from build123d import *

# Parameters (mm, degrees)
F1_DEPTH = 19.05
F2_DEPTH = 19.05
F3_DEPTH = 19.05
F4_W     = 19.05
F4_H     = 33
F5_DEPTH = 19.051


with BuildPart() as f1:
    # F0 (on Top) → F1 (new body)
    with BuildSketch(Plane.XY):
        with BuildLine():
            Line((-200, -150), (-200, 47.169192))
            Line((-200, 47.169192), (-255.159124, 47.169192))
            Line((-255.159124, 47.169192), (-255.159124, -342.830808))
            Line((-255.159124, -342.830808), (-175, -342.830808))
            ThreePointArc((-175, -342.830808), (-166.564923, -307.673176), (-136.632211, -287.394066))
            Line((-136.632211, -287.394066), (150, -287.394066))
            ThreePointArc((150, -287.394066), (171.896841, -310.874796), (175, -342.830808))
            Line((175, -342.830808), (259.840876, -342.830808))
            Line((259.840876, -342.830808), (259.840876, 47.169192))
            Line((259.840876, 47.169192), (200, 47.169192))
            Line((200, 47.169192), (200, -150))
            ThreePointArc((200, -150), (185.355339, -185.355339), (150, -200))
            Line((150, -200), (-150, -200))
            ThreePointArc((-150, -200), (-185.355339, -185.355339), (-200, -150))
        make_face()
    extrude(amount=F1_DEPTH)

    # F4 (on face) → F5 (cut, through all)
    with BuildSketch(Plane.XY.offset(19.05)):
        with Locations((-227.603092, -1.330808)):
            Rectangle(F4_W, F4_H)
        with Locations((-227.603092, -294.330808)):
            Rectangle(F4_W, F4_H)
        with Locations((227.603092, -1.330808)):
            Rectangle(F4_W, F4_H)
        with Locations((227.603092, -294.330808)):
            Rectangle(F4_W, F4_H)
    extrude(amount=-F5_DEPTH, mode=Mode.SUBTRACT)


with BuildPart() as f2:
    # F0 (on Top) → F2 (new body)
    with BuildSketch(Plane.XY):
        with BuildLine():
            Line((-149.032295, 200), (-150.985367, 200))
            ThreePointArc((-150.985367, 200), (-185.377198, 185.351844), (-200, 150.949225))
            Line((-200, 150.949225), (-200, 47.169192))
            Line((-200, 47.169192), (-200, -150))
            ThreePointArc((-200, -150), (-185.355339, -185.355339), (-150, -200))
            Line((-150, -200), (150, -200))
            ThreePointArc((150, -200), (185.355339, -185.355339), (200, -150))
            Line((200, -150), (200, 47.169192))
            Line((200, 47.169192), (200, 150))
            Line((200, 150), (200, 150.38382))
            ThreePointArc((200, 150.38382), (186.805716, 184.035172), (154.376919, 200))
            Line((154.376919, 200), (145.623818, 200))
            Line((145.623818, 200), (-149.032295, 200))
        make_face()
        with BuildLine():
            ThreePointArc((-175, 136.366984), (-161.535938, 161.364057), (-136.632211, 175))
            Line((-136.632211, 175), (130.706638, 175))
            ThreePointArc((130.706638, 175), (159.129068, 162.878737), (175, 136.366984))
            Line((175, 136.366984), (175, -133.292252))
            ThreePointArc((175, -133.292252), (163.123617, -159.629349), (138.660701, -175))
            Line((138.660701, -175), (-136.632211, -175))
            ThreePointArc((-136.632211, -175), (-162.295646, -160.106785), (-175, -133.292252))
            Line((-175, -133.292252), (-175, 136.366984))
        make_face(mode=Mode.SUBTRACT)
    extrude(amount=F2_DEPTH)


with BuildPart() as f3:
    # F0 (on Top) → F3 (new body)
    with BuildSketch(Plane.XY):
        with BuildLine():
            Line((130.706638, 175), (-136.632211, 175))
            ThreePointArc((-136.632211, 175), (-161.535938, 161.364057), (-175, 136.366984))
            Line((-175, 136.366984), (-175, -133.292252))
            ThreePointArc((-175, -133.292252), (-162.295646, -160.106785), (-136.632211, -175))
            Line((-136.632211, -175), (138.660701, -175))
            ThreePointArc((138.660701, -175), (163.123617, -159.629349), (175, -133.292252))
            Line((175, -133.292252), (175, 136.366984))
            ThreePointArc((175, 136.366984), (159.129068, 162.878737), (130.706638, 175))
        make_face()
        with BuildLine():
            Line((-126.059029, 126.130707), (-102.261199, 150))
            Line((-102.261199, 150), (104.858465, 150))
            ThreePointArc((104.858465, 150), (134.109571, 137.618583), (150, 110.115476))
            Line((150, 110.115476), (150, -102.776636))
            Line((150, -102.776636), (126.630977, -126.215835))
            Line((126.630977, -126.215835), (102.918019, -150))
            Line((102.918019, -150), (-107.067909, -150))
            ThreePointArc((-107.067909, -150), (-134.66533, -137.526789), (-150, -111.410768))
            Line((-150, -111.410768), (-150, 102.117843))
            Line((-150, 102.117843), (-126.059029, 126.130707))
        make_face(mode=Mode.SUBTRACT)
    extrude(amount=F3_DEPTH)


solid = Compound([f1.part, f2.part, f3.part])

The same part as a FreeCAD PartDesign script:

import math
import FreeCAD as App
import Part
import Sketcher
Q = App.Units.Quantity


def add_polygon(sketch, points):
    """Adds a closed chain of lines whose ends are joined by coincident constraints."""
    first, n = sketch.GeometryCount, len(points)
    for a, b in zip(points, points[1:] + points[:1]):
        sketch.addGeometry(Part.LineSegment(App.Vector(*a, 0), App.Vector(*b, 0)), False)
    for i in range(n):
        sketch.addConstraint(Sketcher.Constraint("Coincident", first + i, 2, first + (i + 1) % n, 1))

doc = App.newDocument("Part")
params = doc.addObject("Spreadsheet::Sheet", "Params")
for row, (alias, value) in enumerate([
    ("sketch1_radius", "50.000001 mm"),
    ("sketch1_width", "300 mm"),
    ("sketch1_height", "390 mm"),
    ("pad1_length", "19.05 mm"),
    ("sketch2_height", "33 mm"),
    ("sketch2_width", "19.05 mm"),
    ("sketch3_radius", "49.999999 mm"),
    ("sketch3_radius2", "50 mm"),
    ("sketch3_radius3", "50 mm"),
    ("sketch3_radius4", "50 mm"),
    ("sketch3_radius5", "49.999998 mm"),
    ("pad2_length", "19.05 mm"),
    ("sketch4_radius", "49.999998 mm"),
    ("sketch4_radius2", "49.999999 mm"),
    ("sketch4_radius3", "49.999998 mm"),
    ("sketch4_radius4", "50 mm"),
    ("sketch4_radius5", "50 mm"),
    ("pad3_length", "19.05 mm"),
], start=1):
    params.set(f"A{row}", alias)
    params.set(f"B{row}", "=" + value)
    params.setAlias(f"B{row}", alias)

body = doc.addObject("PartDesign::Body", "Body")

# Sketch on XY plane
sketch1 = doc.addObject("Sketcher::SketchObject", "Sketch")
body.addObject(sketch1)
sketch1.AttachmentSupport = (doc.XY_Plane, [""])
sketch1.MapMode = "FlatFace"
sketch1.addGeometry([
    Part.LineSegment(App.Vector(-200, -150, 0), App.Vector(-200, 47, 0)),  # 0
    Part.LineSegment(App.Vector(-200, 47, 0), App.Vector(-255, 47, 0)),  # 1
    Part.LineSegment(App.Vector(-255, 47, 0), App.Vector(-255, -343, 0)),  # 2
    Part.LineSegment(App.Vector(-255, -343, 0), App.Vector(-175, -343, 0)),  # 3
    Part.ArcOfCircle(Part.Circle(App.Vector(-125, -336, 0), App.Vector(0, 0, 1), 50), math.radians(103), math.radians(188)),  # 4
    Part.LineSegment(App.Vector(-137, -287, 0), App.Vector(150, -287, 0)),  # 5
    Part.ArcOfCircle(Part.Circle(App.Vector(126, -331, 0), App.Vector(0, 0, 1), 50), math.radians(-13), math.radians(62)),  # 6
    Part.LineSegment(App.Vector(175, -343, 0), App.Vector(260, -343, 0)),  # 7
    Part.LineSegment(App.Vector(260, -343, 0), App.Vector(260, 47, 0)),  # 8
    Part.LineSegment(App.Vector(260, 47, 0), App.Vector(200, 47, 0)),  # 9
    Part.LineSegment(App.Vector(200, 47, 0), App.Vector(200, -150, 0)),  # 10
    Part.ArcOfCircle(Part.Circle(App.Vector(150, -150, 0), App.Vector(0, 0, 1), 50), math.radians(-90), math.radians(0)),  # 11
    Part.LineSegment(App.Vector(150, -200, 0), App.Vector(-150, -200, 0)),  # 12
    Part.ArcOfCircle(Part.Circle(App.Vector(-150, -150, 0), App.Vector(0, 0, 1), 50), math.radians(-180), math.radians(-90)),  # 13
], False)
sketch1.addConstraint([
    Sketcher.Constraint("Coincident", 0, 2, 1, 1),
    Sketcher.Constraint("Coincident", 1, 2, 2, 1),
    Sketcher.Constraint("Coincident", 2, 2, 3, 1),
    Sketcher.Constraint("Coincident", 3, 2, 4, 2),
    Sketcher.Constraint("Coincident", 4, 1, 5, 1),
    Sketcher.Constraint("Coincident", 5, 2, 6, 2),
    Sketcher.Constraint("Coincident", 6, 1, 7, 1),
    Sketcher.Constraint("Coincident", 7, 2, 8, 1),
    Sketcher.Constraint("Coincident", 8, 2, 9, 1),
    Sketcher.Constraint("Coincident", 9, 2, 10, 1),
    Sketcher.Constraint("Tangent", 10, 2, 11, 2),
    Sketcher.Constraint("Tangent", 11, 1, 12, 1),
    Sketcher.Constraint("Tangent", 12, 2, 13, 2),
    Sketcher.Constraint("Tangent", 13, 1, 0, 1),
    Sketcher.Constraint("Vertical", 0),
    Sketcher.Constraint("Horizontal", 1),
    Sketcher.Constraint("Vertical", 2),
    Sketcher.Constraint("Horizontal", 3),
    Sketcher.Constraint("Horizontal", 5),
    Sketcher.Constraint("Horizontal", 7),
    Sketcher.Constraint("Vertical", 8),
    Sketcher.Constraint("Horizontal", 9),
    Sketcher.Constraint("Vertical", 10),
    Sketcher.Constraint("Horizontal", 12),
    Sketcher.Constraint("Equal", 4, 6),
    Sketcher.Constraint("Equal", 6, 11),
    Sketcher.Constraint("Equal", 11, 13),
    Sketcher.Constraint("Symmetric", 3, 2, 6, 1, -2),
    Sketcher.Constraint("Symmetric", 0, 2, 9, 2, -2),
    Sketcher.Constraint("Vertical", 11, 3, 5, 2),
    Sketcher.Constraint("Radius", 4, Q("50.000001 mm")),
    Sketcher.Constraint("DistanceX", 12, 2, 12, 1, Q("300 mm")),
    Sketcher.Constraint("DistanceY", 2, 2, 2, 1, Q("390 mm")),
    Sketcher.Constraint("DistanceY", 11, 3, -1, 1, Q("150 mm")),
    Sketcher.Constraint("DistanceX", 3, 2, -1, 1, Q("175 mm")),
    Sketcher.Constraint("DistanceX", 5, 1, 5, 2, Q("286.632211 mm")),
    Sketcher.Constraint("DistanceX", 1, 2, 4, 3, Q("129.7078 mm")),
    Sketcher.Constraint("DistanceX", 4, 3, 7, 2, Q("385.2922 mm")),
    Sketcher.Constraint("DistanceX", 1, 2, 1, 1, Q("55.159124 mm")),
    Sketcher.Constraint("DistanceY", 0, 1, 0, 2, Q("197.169192 mm")),
])
sketch1.setExpression("Constraints[30]", "Params.sketch1_radius")
sketch1.setExpression("Constraints[31]", "Params.sketch1_width")
sketch1.setExpression("Constraints[32]", "Params.sketch1_height")
pad1 = doc.addObject("PartDesign::Pad", "Pad")
body.addObject(pad1)
pad1.Profile = sketch1
pad1.setExpression("Length", "Params.pad1_length")

# Sketch on XY plane
sketch2 = doc.addObject("Sketcher::SketchObject", "Sketch001")
body.addObject(sketch2)
sketch2.AttachmentSupport = (doc.XY_Plane, [""])
sketch2.MapMode = "FlatFace"
sketch2.AttachmentOffset = App.Placement(App.Vector(0, 0, 19.05), App.Rotation())
add_polygon(sketch2, [(-237, 15), (-237, -18), (-218, -18), (-218, 15)])  # lines 0-3
add_polygon(sketch2, [(-237, -278), (-237, -311), (-218, -311), (-218, -278)])  # lines 4-7
add_polygon(sketch2, [(218, 15), (218, -18), (237, -18), (237, 15)])  # lines 8-11
add_polygon(sketch2, [(218, -278), (218, -311), (237, -311), (237, -278)])  # lines 12-15
sketch2.addConstraint([
    Sketcher.Constraint("Vertical", 0),
    Sketcher.Constraint("Horizontal", 1),
    Sketcher.Constraint("Vertical", 2),
    Sketcher.Constraint("Horizontal", 3),
    Sketcher.Constraint("Vertical", 4),
    Sketcher.Constraint("Horizontal", 5),
    Sketcher.Constraint("Vertical", 6),
    Sketcher.Constraint("Horizontal", 7),
    Sketcher.Constraint("Vertical", 8),
    Sketcher.Constraint("Horizontal", 9),
    Sketcher.Constraint("Vertical", 10),
    Sketcher.Constraint("Horizontal", 11),
    Sketcher.Constraint("Vertical", 12),
    Sketcher.Constraint("Horizontal", 13),
    Sketcher.Constraint("Vertical", 14),
    Sketcher.Constraint("Horizontal", 15),
    Sketcher.Constraint("Symmetric", 1, 2, 8, 2, -2),
    Sketcher.Constraint("Symmetric", 3, 2, 10, 2, -2),
    Sketcher.Constraint("Symmetric", 5, 2, 12, 2, -2),
    Sketcher.Constraint("Symmetric", 7, 2, 14, 2, -2),
    Sketcher.Constraint("Vertical", 3, 2, 4, 2),
    Sketcher.Constraint("Vertical", 2, 2, 5, 2),
    Sketcher.Constraint("Equal", 2, 4),
    Sketcher.Constraint("DistanceY", 0, 2, 0, 1, Q("33 mm")),
    Sketcher.Constraint("DistanceY", 4, 2, 0, 2, Q("293 mm")),
    Sketcher.Constraint("DistanceX", 1, 1, 1, 2, Q("19.05 mm")),
    Sketcher.Constraint("DistanceY", 0, 2, -1, 1, Q("17.830808 mm")),
    Sketcher.Constraint("DistanceX", 1, 2, -1, 1, Q("218.078092 mm")),
])
sketch2.setExpression("Constraints[39]", "Params.sketch2_height")
sketch2.setExpression("Constraints[41]", "Params.sketch2_width")
pocket1 = doc.addObject("PartDesign::Pocket", "Pocket")
body.addObject(pocket1)
pocket1.Profile = sketch2
pocket1.Type = "ThroughAll"
body2 = doc.addObject("PartDesign::Body", "Body001")

# Sketch on XY plane
sketch3 = doc.addObject("Sketcher::SketchObject", "Sketch002")
body2.addObject(sketch3)
sketch3.AttachmentSupport = (doc.getObject("XY_Plane001"), [""])
sketch3.MapMode = "FlatFace"
sketch3.addGeometry([
    Part.ArcOfCircle(Part.Circle(App.Vector(-150.008832, 150.009538, 0), App.Vector(0, 0, 1), 49.999999), math.radians(91.119098), math.radians(178.923135)),  # 0
    Part.LineSegment(App.Vector(-200, 150.949225, 0), App.Vector(-200, -150, 0)),  # 1
    Part.ArcOfCircle(Part.Circle(App.Vector(-150, -150, 0), App.Vector(0, 0, 1), 50), math.radians(-180), math.radians(-90)),  # 2
    Part.LineSegment(App.Vector(-150, -200, 0), App.Vector(150, -200, 0)),  # 3
    Part.ArcOfCircle(Part.Circle(App.Vector(150, -150, 0), App.Vector(0, 0, 1), 50), math.radians(-90), math.radians(0)),  # 4
    Part.LineSegment(App.Vector(200, -150, 0), App.Vector(200, 150.38382, 0)),  # 5
    Part.ArcOfCircle(Part.Circle(App.Vector(150.000368, 150.19191, 0), App.Vector(0, 0, 1), 50), math.radians(0.219913), math.radians(84.978416)),  # 6
    Part.LineSegment(App.Vector(154.376919, 200, 0), App.Vector(-150.985367, 200, 0)),  # 7
    Part.LineSegment(App.Vector(-175, -133.292252, 0), App.Vector(-175, 136.366984, 0)),  # 8
    Part.ArcOfCircle(Part.Circle(App.Vector(-126.059031, 126.130708, 0), App.Vector(0, 0, 1), 49.999998), math.radians(102.208138), math.radians(168.186568)),  # 9
    Part.LineSegment(App.Vector(-136.632211, 175, 0), App.Vector(130.706638, 175, 0)),  # 10
    Part.ArcOfCircle(Part.Circle(App.Vector(126.263468, 125.197809, 0), App.Vector(0, 0, 1), 50), math.radians(12.907841), math.radians(84.901777)),  # 11
    Part.LineSegment(App.Vector(175, 136.366984, 0), App.Vector(175, -133.292252, 0)),  # 12
    Part.ArcOfCircle(Part.Circle(App.Vector(125.425446, -126.783531, 0), App.Vector(0, 0, 1), 49.999998), math.radians(-74.650569), math.radians(-7.479672)),  # 13
    Part.LineSegment(App.Vector(138.660701, -175, 0), App.Vector(-136.632211, -175, 0)),  # 14
    Part.ArcOfCircle(Part.Circle(App.Vector(-125.497629, -126.255555, 0), App.Vector(0, 0, 1), 49.999999), math.radians(-171.909681), math.radians(-102.867176)),  # 15
], False)
sketch3.addConstraint([
    Sketcher.Constraint("Coincident", 0, 2, 1, 1),
    Sketcher.Constraint("Coincident", 1, 2, 2, 1),
    Sketcher.Constraint("Coincident", 2, 2, 3, 1),
    Sketcher.Constraint("Coincident", 3, 2, 4, 1),
    Sketcher.Constraint("Coincident", 4, 2, 5, 1),
    Sketcher.Constraint("Coincident", 5, 2, 6, 1),
    Sketcher.Constraint("Coincident", 6, 2, 7, 1),
    Sketcher.Constraint("Coincident", 7, 2, 0, 1),
    Sketcher.Constraint("Coincident", 8, 2, 9, 2),
    Sketcher.Constraint("Coincident", 9, 1, 10, 1),
    Sketcher.Constraint("Coincident", 10, 2, 11, 2),
    Sketcher.Constraint("Coincident", 11, 1, 12, 1),
    Sketcher.Constraint("Coincident", 12, 2, 13, 2),
    Sketcher.Constraint("Coincident", 13, 1, 14, 1),
    Sketcher.Constraint("Coincident", 14, 2, 15, 2),
    Sketcher.Constraint("Coincident", 15, 1, 8, 1),
    Sketcher.Constraint("Vertical", 1),
    Sketcher.Constraint("Horizontal", 3),
    Sketcher.Constraint("Vertical", 5),
    Sketcher.Constraint("Horizontal", 7),
    Sketcher.Constraint("Vertical", 8),
    Sketcher.Constraint("Horizontal", 10),
    Sketcher.Constraint("Vertical", 12),
    Sketcher.Constraint("Horizontal", 14),
    Sketcher.Constraint("Radius", 0, Q("49.999999 mm")),
    Sketcher.Constraint("Radius", 2, Q("50 mm")),
    Sketcher.Constraint("Radius", 4, Q("50 mm")),
    Sketcher.Constraint("Radius", 6, Q("50 mm")),
    Sketcher.Constraint("Radius", 9, Q("49.999998 mm")),
    Sketcher.Constraint("Radius", 11, Q("50 mm")),
    Sketcher.Constraint("Radius", 13, Q("49.999998 mm")),
    Sketcher.Constraint("Radius", 15, Q("49.999999 mm")),
    Sketcher.Constraint("DistanceX", 3, 1, 3, 2, Q("300 mm")),
    Sketcher.Constraint("DistanceX", 2, 3, -1, 1, Q("150 mm")),
    Sketcher.Constraint("DistanceY", 2, 3, -1, 1, Q("150 mm")),
    Sketcher.Constraint("DistanceX", -1, 1, 4, 3, Q("150 mm")),
    Sketcher.Constraint("DistanceY", 1, 2, -1, 1, Q("150 mm")),
    Sketcher.Constraint("DistanceX", 2, 2, -1, 1, Q("150 mm")),
    Sketcher.Constraint("DistanceY", 4, 2, -1, 1, Q("150 mm")),
    Sketcher.Constraint("DistanceY", -1, 1, 6, 2, Q("200 mm")),
    Sketcher.Constraint("DistanceX", 8, 2, -1, 1, Q("175 mm")),
    Sketcher.Constraint("DistanceY", -1, 1, 9, 1, Q("175 mm")),
    Sketcher.Constraint("DistanceX", -1, 1, 11, 1, Q("175 mm")),
    Sketcher.Constraint("DistanceY", 13, 1, -1, 1, Q("175 mm")),
    Sketcher.Constraint("DistanceX", 10, 1, 10, 2, Q("267.338849 mm")),
    Sketcher.Constraint("DistanceX", 14, 2, 14, 1, Q("275.292912 mm")),
    Sketcher.Constraint("DistanceY", 5, 1, 5, 2, Q("300.38382 mm")),
    Sketcher.Constraint("DistanceX", -1, 1, 13, 1, Q("138.660701 mm")),
    Sketcher.Constraint("DistanceX", 0, 3, 6, 3, Q("300.0092 mm")),
    Sketcher.Constraint("DistanceX", 0, 3, 9, 3, Q("23.949801 mm")),
    Sketcher.Constraint("DistanceY", 9, 3, 6, 3, Q("24.061202 mm")),
    Sketcher.Constraint("DistanceX", 11, 3, 6, 3, Q("23.7369 mm")),
    Sketcher.Constraint("DistanceY", 11, 3, 6, 3, Q("24.994101 mm")),
    Sketcher.Constraint("DistanceX", 9, 3, 15, 3, Q("0.561402 mm")),
    Sketcher.Constraint("DistanceX", 7, 2, 7, 1, Q("305.362286 mm")),
    Sketcher.Constraint("DistanceY", 12, 2, 12, 1, Q("269.659236 mm")),
])
sketch3.setExpression("Constraints[24]", "Params.sketch3_radius")
sketch3.setExpression("Constraints[25]", "Params.sketch3_radius2")
sketch3.setExpression("Constraints[26]", "Params.sketch3_radius3")
sketch3.setExpression("Constraints[27]", "Params.sketch3_radius4")
sketch3.setExpression("Constraints[28]", "Params.sketch3_radius5")
pad2 = doc.addObject("PartDesign::Pad", "Pad001")
body2.addObject(pad2)
pad2.Profile = sketch3
pad2.setExpression("Length", "Params.pad2_length")
body3 = doc.addObject("PartDesign::Body", "Body002")

# Sketch on XY plane
sketch4 = doc.addObject("Sketcher::SketchObject", "Sketch003")
body3.addObject(sketch4)
sketch4.AttachmentSupport = (doc.getObject("XY_Plane002"), [""])
sketch4.MapMode = "FlatFace"
sketch4.addGeometry([
    Part.LineSegment(App.Vector(130.706638, 175, 0), App.Vector(-136.632211, 175, 0)),  # 0
    Part.ArcOfCircle(Part.Circle(App.Vector(-126.059031, 126.130708, 0), App.Vector(0, 0, 1), 49.999998), math.radians(102.208138), math.radians(168.186568)),  # 1
    Part.LineSegment(App.Vector(-175, 136.366984, 0), App.Vector(-175, -133.292252, 0)),  # 2
    Part.ArcOfCircle(Part.Circle(App.Vector(-125.497629, -126.255555, 0), App.Vector(0, 0, 1), 49.999999), math.radians(-171.909681), math.radians(-102.867176)),  # 3
    Part.LineSegment(App.Vector(-136.632211, -175, 0), App.Vector(138.660701, -175, 0)),  # 4
    Part.ArcOfCircle(Part.Circle(App.Vector(125.425446, -126.783531, 0), App.Vector(0, 0, 1), 49.999998), math.radians(-74.650569), math.radians(-7.479672)),  # 5
    Part.LineSegment(App.Vector(175, -133.292252, 0), App.Vector(175, 136.366984, 0)),  # 6
    Part.ArcOfCircle(Part.Circle(App.Vector(126.263468, 125.197809, 0), App.Vector(0, 0, 1), 50), math.radians(12.907841), math.radians(84.901777)),  # 7
    Part.LineSegment(App.Vector(-150, 102.117843, 0), App.Vector(-126.059029, 126.130707, 0)),  # 8
    Part.LineSegment(App.Vector(-126.059029, 126.130707, 0), App.Vector(-102.261199, 150, 0)),  # 9
    Part.LineSegment(App.Vector(-102.261199, 150, 0), App.Vector(104.858465, 150, 0)),  # 10
    Part.ArcOfCircle(Part.Circle(App.Vector(101.003407, 100.148836, 0), App.Vector(0, 0, 1), 50), math.radians(11.497946), math.radians(85.578041)),  # 11
    Part.LineSegment(App.Vector(150, 110.115476, 0), App.Vector(150, -102.776636, 0)),  # 12
    Part.LineSegment(App.Vector(150, -102.776636, 0), App.Vector(126.630977, -126.215835, 0)),  # 13
    Part.LineSegment(App.Vector(126.630977, -126.215835, 0), App.Vector(102.918019, -150, 0)),  # 14
    Part.LineSegment(App.Vector(102.918019, -150, 0), App.Vector(-107.067909, -150, 0)),  # 15
    Part.ArcOfCircle(Part.Circle(App.Vector(-101.240859, -100.340705, 0), App.Vector(0, 0, 1), 50.000001), math.radians(-167.208651), math.radians(-96.692515)),  # 16
    Part.LineSegment(App.Vector(-150, -111.410768, 0), App.Vector(-150, 102.117843, 0)),  # 17
], False)
sketch4.addConstraint([
    Sketcher.Constraint("Coincident", 0, 2, 1, 1),
    Sketcher.Constraint("Coincident", 1, 2, 2, 1),
    Sketcher.Constraint("Coincident", 2, 2, 3, 1),
    Sketcher.Constraint("Coincident", 3, 2, 4, 1),
    Sketcher.Constraint("Coincident", 4, 2, 5, 1),
    Sketcher.Constraint("Coincident", 5, 2, 6, 1),
    Sketcher.Constraint("Coincident", 6, 2, 7, 1),
    Sketcher.Constraint("Coincident", 7, 2, 0, 1),
    Sketcher.Constraint("Coincident", 8, 2, 9, 1),
    Sketcher.Constraint("Coincident", 9, 2, 10, 1),
    Sketcher.Constraint("Coincident", 10, 2, 11, 2),
    Sketcher.Constraint("Coincident", 11, 1, 12, 1),
    Sketcher.Constraint("Coincident", 12, 2, 13, 1),
    Sketcher.Constraint("Coincident", 13, 2, 14, 1),
    Sketcher.Constraint("Coincident", 14, 2, 15, 1),
    Sketcher.Constraint("Coincident", 15, 2, 16, 2),
    Sketcher.Constraint("Coincident", 16, 1, 17, 1),
    Sketcher.Constraint("Coincident", 17, 2, 8, 1),
    Sketcher.Constraint("Horizontal", 0),
    Sketcher.Constraint("Vertical", 2),
    Sketcher.Constraint("Horizontal", 4),
    Sketcher.Constraint("Vertical", 6),
    Sketcher.Constraint("Horizontal", 10),
    Sketcher.Constraint("Vertical", 12),
    Sketcher.Constraint("Horizontal", 15),
    Sketcher.Constraint("Vertical", 17),
    Sketcher.Constraint("Coincident", 8, 2, 1, 3),
    Sketcher.Constraint("Radius", 1, Q("49.999998 mm")),
    Sketcher.Constraint("Radius", 3, Q("49.999999 mm")),
    Sketcher.Constraint("Radius", 5, Q("49.999998 mm")),
    Sketcher.Constraint("Radius", 7, Q("50 mm")),
    Sketcher.Constraint("Radius", 11, Q("50 mm")),
    Sketcher.Constraint("Radius", 16, Q("50.000001 mm")),
    Sketcher.Constraint("DistanceY", -1, 1, 0, 2, Q("175 mm")),
    Sketcher.Constraint("DistanceX", 1, 2, -1, 1, Q("175 mm")),
    Sketcher.Constraint("DistanceY", 3, 2, -1, 1, Q("175 mm")),
    Sketcher.Constraint("DistanceX", -1, 1, 5, 2, Q("175 mm")),
    Sketcher.Constraint("DistanceY", -1, 1, 9, 2, Q("150 mm")),
    Sketcher.Constraint("DistanceX", -1, 1, 11, 1, Q("150 mm")),
    Sketcher.Constraint("DistanceY", 14, 2, -1, 1, Q("150 mm")),
    Sketcher.Constraint("DistanceX", 16, 1, -1, 1, Q("150 mm")),
    Sketcher.Constraint("DistanceX", 0, 2, 0, 1, Q("267.338849 mm")),
    Sketcher.Constraint("DistanceX", 4, 1, 4, 2, Q("275.292912 mm")),
    Sketcher.Constraint("DistanceX", 15, 2, 15, 1, Q("209.985928 mm")),
    Sketcher.Constraint("DistanceY", 12, 2, 12, 1, Q("212.892112 mm")),
    Sketcher.Constraint("DistanceY", 17, 1, 17, 2, Q("213.528611 mm")),
    Sketcher.Constraint("DistanceX", -1, 1, 4, 2, Q("138.660701 mm")),
    Sketcher.Constraint("DistanceX", 9, 2, -1, 1, Q("102.261199 mm")),
    Sketcher.Constraint("DistanceX", 1, 3, 3, 3, Q("0.561402 mm")),
    Sketcher.Constraint("DistanceX", 1, 3, 7, 3, Q("252.322499 mm")),
    Sketcher.Constraint("DistanceY", 7, 3, 1, 3, Q("0.9329 mm")),
    Sketcher.Constraint("DistanceY", 13, 2, 12, 2, Q("23.439199 mm")),
    Sketcher.Constraint("Distance", 8, Q("33.90852 mm")),
    Sketcher.Constraint("Distance", 13, Q("33.098448 mm")),
    Sketcher.Constraint("DistanceX", 10, 1, 10, 2, Q("207.119664 mm")),
    Sketcher.Constraint("DistanceY", 2, 2, 2, 1, Q("269.659236 mm")),
    Sketcher.Constraint("DistanceY", 6, 1, 6, 2, Q("269.659236 mm")),
    Sketcher.Constraint("DistanceX", 16, 3, -1, 1, Q("101.240859 mm")),
    Sketcher.Constraint("DistanceX", 11, 3, 7, 3, Q("25.260061 mm")),
])
sketch4.setExpression("Constraints[27]", "Params.sketch4_radius")
sketch4.setExpression("Constraints[28]", "Params.sketch4_radius2")
sketch4.setExpression("Constraints[29]", "Params.sketch4_radius3")
sketch4.setExpression("Constraints[30]", "Params.sketch4_radius4")
sketch4.setExpression("Constraints[31]", "Params.sketch4_radius5")
pad3 = doc.addObject("PartDesign::Pad", "Pad002")
body3.addObject(pad3)
pad3.Profile = sketch4
pad3.setExpression("Length", "Params.pad3_length")

doc.recompute()
